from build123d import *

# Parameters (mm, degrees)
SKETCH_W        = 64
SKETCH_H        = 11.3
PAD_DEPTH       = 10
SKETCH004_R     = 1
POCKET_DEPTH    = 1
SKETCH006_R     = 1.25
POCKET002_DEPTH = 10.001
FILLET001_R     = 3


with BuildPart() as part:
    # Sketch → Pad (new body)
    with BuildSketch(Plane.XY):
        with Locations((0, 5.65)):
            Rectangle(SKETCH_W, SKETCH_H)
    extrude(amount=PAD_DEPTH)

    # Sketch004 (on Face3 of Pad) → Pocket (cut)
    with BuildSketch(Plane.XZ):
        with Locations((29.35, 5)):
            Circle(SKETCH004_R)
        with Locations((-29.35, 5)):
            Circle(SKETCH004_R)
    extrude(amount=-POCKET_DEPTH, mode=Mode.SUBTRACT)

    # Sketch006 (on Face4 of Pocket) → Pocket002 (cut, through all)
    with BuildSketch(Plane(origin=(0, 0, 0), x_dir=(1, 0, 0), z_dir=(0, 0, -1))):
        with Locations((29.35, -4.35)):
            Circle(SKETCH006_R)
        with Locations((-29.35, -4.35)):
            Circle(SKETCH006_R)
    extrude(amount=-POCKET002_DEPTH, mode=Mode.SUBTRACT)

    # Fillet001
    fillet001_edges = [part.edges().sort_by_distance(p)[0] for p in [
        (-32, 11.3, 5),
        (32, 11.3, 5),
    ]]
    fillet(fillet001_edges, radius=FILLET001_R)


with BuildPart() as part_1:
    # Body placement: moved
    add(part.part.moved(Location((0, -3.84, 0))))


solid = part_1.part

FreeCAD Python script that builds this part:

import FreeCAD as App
import Part
import Sketcher


def edges_at(feature, points):
    """Names of the edges that pass closest to the given points."""
    edges = feature.Shape.Edges
    near = lambda p: min(range(len(edges)), key=lambda i: edges[i].distToShape(Part.Vertex(*p))[0])
    return sorted({f"Edge{near(p) + 1}" for p in points})

doc = App.newDocument("Part")
body = doc.addObject("PartDesign::Body", "Body")

sketch1 = body.newObject("Sketcher::SketchObject", "Sketch")
sketch1.AttachmentSupport = (doc.getObject("XY_Plane"), [""])
sketch1.MapMode = "FlatFace"
sketch1.addGeometry(Part.LineSegment(App.Vector(-32, 11.3, 0), App.Vector(-32, 0, 0)), False)
sketch1.addGeometry(Part.LineSegment(App.Vector(-32, 0, 0), App.Vector(32, 0, 0)), False)
sketch1.addGeometry(Part.LineSegment(App.Vector(32, 0, 0), App.Vector(32, 11.3, 0)), False)
sketch1.addGeometry(Part.LineSegment(App.Vector(32, 11.3, 0), App.Vector(-32, 11.3, 0)), False)
sketch1.addConstraint(Sketcher.Constraint("Coincident", 0, 2, 1, 1))
sketch1.addConstraint(Sketcher.Constraint("Coincident", 1, 2, 2, 1))
sketch1.addConstraint(Sketcher.Constraint("Coincident", 2, 2, 3, 1))
sketch1.addConstraint(Sketcher.Constraint("Coincident", 3, 2, 0, 1))
sketch1.addConstraint(Sketcher.Constraint("Vertical", 0))
sketch1.addConstraint(Sketcher.Constraint("Horizontal", 1))
sketch1.addConstraint(Sketcher.Constraint("Vertical", 2))
sketch1.addConstraint(Sketcher.Constraint("Horizontal", 3))
sketch1.addConstraint(Sketcher.Constraint("Symmetric", 0, 2, 1, 2, -1, 1))
sketch1.addConstraint(Sketcher.Constraint("DistanceX", 1, 1, 1, 2, 64.0))
sketch1.addConstraint(Sketcher.Constraint("DistanceY", 0, 2, 0, 1, 11.3))
pad1 = body.newObject("PartDesign::Pad", "Pad")
pad1.Profile = sketch1
pad1.Length = 10

sketch2 = body.newObject("Sketcher::SketchObject", "Sketch001")
sketch2.AttachmentSupport = (doc.getObject("XZ_Plane"), [""])
sketch2.MapMode = "FlatFace"
sketch2.addGeometry(Part.Circle(App.Vector(29.35, 5, 0), App.Vector(0, 0, 1), 1), False)
sketch2.addGeometry(Part.Circle(App.Vector(-29.35, 5, 0), App.Vector(0, 0, 1), 1), False)
sketch2.addConstraint(Sketcher.Constraint("Equal", 0, 1))
sketch2.addConstraint(Sketcher.Constraint("Symmetric", 0, 3, 1, 3, -2))
sketch2.addConstraint(Sketcher.Constraint("Diameter", 0, 2.0))
sketch2.addConstraint(Sketcher.Constraint("DistanceY", -1, 1, 0, 3, 5.0))
sketch2.addConstraint(Sketcher.Constraint("DistanceX", 1, 3, 0, 3, 58.7))
pocket1 = body.newObject("PartDesign::Pocket", "Pocket")
pocket1.Profile = sketch2
pocket1.Length = 1

sketch3 = body.newObject("Sketcher::SketchObject", "Sketch002")
sketch3.AttachmentSupport = (doc.getObject("XY_Plane"), [""])
sketch3.MapMode = "FlatFace"
sketch3.addGeometry(Part.Circle(App.Vector(29.35, 4.35, 0), App.Vector(0, 0, 1), 1.25), False)
sketch3.addGeometry(Part.Circle(App.Vector(-29.35, 4.35, 0), App.Vector(0, 0, 1), 1.25), False)
sketch3.addConstraint(Sketcher.Constraint("Equal", 0, 1))
sketch3.addConstraint(Sketcher.Constraint("Symmetric", 0, 3, 1, 3, -2))
sketch3.addConstraint(Sketcher.Constraint("Diameter", 0, 2.5))
sketch3.addConstraint(Sketcher.Constraint("DistanceX", 1, 3, 0, 3, 58.7))
sketch3.addConstraint(Sketcher.Constraint("DistanceY", -1, 1, 0, 3, 4.35))
pocket2 = body.newObject("PartDesign::Pocket", "Pocket001")
pocket2.Profile = sketch3
pocket2.Type = "ThroughAll"
pocket2.Reversed = True
doc.recompute()

fillet = body.newObject("PartDesign::Fillet", "Fillet")
fillet.Base = (pocket2, edges_at(pocket2, [(-32, 11.3, 5), (32, 11.3, 5)]))
fillet.Radius = 3
body2 = doc.addObject("PartDesign::Body", "Body001")
doc.recompute()

body.Placement = App.Placement(App.Vector(0, -3.84, 0), App.Rotation(App.Vector(0, 0, 1), 0))
boolean = body2.newObject("PartDesign::Boolean", "Boolean")
boolean.Type = "Fuse"
boolean.addObjects([body])

doc.recompute()
